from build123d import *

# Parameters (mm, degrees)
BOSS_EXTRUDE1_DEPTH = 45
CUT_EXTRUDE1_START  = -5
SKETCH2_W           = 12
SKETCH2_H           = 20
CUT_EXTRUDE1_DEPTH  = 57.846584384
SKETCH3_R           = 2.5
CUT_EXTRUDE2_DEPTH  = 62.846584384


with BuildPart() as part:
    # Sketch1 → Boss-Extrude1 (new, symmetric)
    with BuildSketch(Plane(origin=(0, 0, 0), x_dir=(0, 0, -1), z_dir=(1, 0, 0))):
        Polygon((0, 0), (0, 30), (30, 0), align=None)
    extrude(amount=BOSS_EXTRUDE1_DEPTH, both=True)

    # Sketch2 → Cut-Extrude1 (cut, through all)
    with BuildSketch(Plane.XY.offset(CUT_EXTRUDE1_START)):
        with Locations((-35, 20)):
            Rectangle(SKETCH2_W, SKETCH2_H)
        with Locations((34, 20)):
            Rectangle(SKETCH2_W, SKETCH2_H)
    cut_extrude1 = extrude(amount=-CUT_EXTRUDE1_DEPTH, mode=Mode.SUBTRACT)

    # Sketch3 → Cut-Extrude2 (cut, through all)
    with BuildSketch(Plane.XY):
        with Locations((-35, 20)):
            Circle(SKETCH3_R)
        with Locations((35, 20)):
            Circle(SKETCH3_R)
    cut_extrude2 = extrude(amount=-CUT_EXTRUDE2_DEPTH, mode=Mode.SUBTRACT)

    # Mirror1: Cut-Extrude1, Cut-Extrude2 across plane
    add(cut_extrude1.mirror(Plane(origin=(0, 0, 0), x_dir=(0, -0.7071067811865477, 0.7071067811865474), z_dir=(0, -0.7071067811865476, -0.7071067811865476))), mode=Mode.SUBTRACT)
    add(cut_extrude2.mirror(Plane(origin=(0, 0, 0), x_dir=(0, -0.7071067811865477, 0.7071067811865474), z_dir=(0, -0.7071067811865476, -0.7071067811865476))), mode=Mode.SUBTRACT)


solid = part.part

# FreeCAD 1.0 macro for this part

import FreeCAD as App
import Part
import Sketcher
Q = App.Units.Quantity

doc = App.newDocument("Part")
body = doc.addObject("PartDesign::Body", "Body")

sketch1 = body.newObject("Sketcher::SketchObject", "Sketch")
sketch1.AttachmentSupport = (doc.getObject("YZ_Plane"), [""])
sketch1.MapMode = "FlatFace"
sketch1.addGeometry(Part.LineSegment(App.Vector(30, 0, 0), App.Vector(0, 0, 0)), False)
sketch1.addGeometry(Part.LineSegment(App.Vector(0, 0, 0), App.Vector(0, -30, 0)), False)
sketch1.addGeometry(Part.LineSegment(App.Vector(0, -30, 0), App.Vector(30, 0, 0)), False)
sketch1.addConstraint(Sketcher.Constraint("Coincident", 0, 2, 1, 1))
sketch1.addConstraint(Sketcher.Constraint("Coincident", 1, 2, 2, 1))
sketch1.addConstraint(Sketcher.Constraint("Coincident", 2, 2, 0, 1))
sketch1.addConstraint(Sketcher.Constraint("Horizontal", 0))
sketch1.addConstraint(Sketcher.Constraint("Vertical", 1))
sketch1.addConstraint(Sketcher.Constraint("Coincident", 0, 2, -1, 1))
sketch1.addConstraint(Sketcher.Constraint("Equal", 0, 1))
sketch1.addConstraint(Sketcher.Constraint("DistanceX", 0, 2, 0, 1, Q("30 mm")))
pad1 = body.newObject("PartDesign::Pad", "Pad")
pad1.Profile = sketch1
pad1.Length = 90
pad1.Midplane = True

sketch2 = body.newObject("Sketcher::SketchObject", "Sketch001")
sketch2.AttachmentSupport = (doc.getObject("XY_Plane"), [""])
sketch2.MapMode = "FlatFace"
sketch2.AttachmentOffset = App.Placement(App.Vector(0, 0, -5), App.Rotation())
sketch2.addGeometry(Part.LineSegment(App.Vector(-41, 30, 0), App.Vector(-41, 10, 0)), False)
sketch2.addGeometry(Part.LineSegment(App.Vector(-41, 10, 0), App.Vector(-29, 10, 0)), False)
sketch2.addGeometry(Part.LineSegment(App.Vector(-29, 10, 0), App.Vector(-29, 30, 0)), False)
sketch2.addGeometry(Part.LineSegment(App.Vector(-29, 30, 0), App.Vector(-41, 30, 0)), False)
sketch2.addGeometry(Part.LineSegment(App.Vector(28, 30, 0), App.Vector(28, 10, 0)), False)
sketch2.addGeometry(Part.LineSegment(App.Vector(28, 10, 0), App.Vector(40, 10, 0)), False)
sketch2.addGeometry(Part.LineSegment(App.Vector(40, 10, 0), App.Vector(40, 30, 0)), False)
sketch2.addGeometry(Part.LineSegment(App.Vector(40, 30, 0), App.Vector(28, 30, 0)), False)
sketch2.addConstraint(Sketcher.Constraint("Coincident", 0, 2, 1, 1))
sketch2.addConstraint(Sketcher.Constraint("Coincident", 1, 2, 2, 1))
sketch2.addConstraint(Sketcher.Constraint("Coincident", 2, 2, 3, 1))
sketch2.addConstraint(Sketcher.Constraint("Coincident", 3, 2, 0, 1))
sketch2.addConstraint(Sketcher.Constraint("Coincident", 4, 2, 5, 1))
sketch2.addConstraint(Sketcher.Constraint("Coincident", 5, 2, 6, 1))
sketch2.addConstraint(Sketcher.Constraint("Coincident", 6, 2, 7, 1))
sketch2.addConstraint(Sketcher.Constraint("Coincident", 7, 2, 4, 1))
sketch2.addConstraint(Sketcher.Constraint("Vertical", 0))
sketch2.addConstraint(Sketcher.Constraint("Horizontal", 1))
sketch2.addConstraint(Sketcher.Constraint("Vertical", 2))
sketch2.addConstraint(Sketcher.Constraint("Horizontal", 3))
sketch2.addConstraint(Sketcher.Constraint("Vertical", 4))
sketch2.addConstraint(Sketcher.Constraint("Horizontal", 5))
sketch2.addConstraint(Sketcher.Constraint("Vertical", 6))
sketch2.addConstraint(Sketcher.Constraint("Horizontal", 7))
sketch2.addConstraint(Sketcher.Constraint("Horizontal", 1, 2, 4, 2))
sketch2.addConstraint(Sketcher.Constraint("Horizontal", 3, 2, 6, 2))
sketch2.addConstraint(Sketcher.Constraint("Equal", 3, 5))
sketch2.addConstraint(Sketcher.Constraint("DistanceX", 1, 1, 1, 2, Q("12 mm")))
sketch2.addConstraint(Sketcher.Constraint("DistanceY", 0, 2, 0, 1, Q("20 mm")))
sketch2.addConstraint(Sketcher.Constraint("DistanceX", 0, 2, -1, 1, Q("41 mm")))
sketch2.addConstraint(Sketcher.Constraint("DistanceY", -1, 1, 0, 2, Q("10 mm")))
sketch2.addConstraint(Sketcher.Constraint("DistanceX", -1, 1, 4, 2, Q("28 mm")))
pocket1 = body.newObject("PartDesign::Pocket", "Pocket")
pocket1.Profile = sketch2
pocket1.Type = "ThroughAll"

sketch3 = body.newObject("Sketcher::SketchObject", "Sketch002")
sketch3.AttachmentSupport = (doc.getObject("XY_Plane"), [""])
sketch3.MapMode = "FlatFace"
sketch3.addGeometry(Part.Circle(App.Vector(-35, 20, 0), App.Vector(0, 0, 1), 2.5), False)
sketch3.addGeometry(Part.Circle(App.Vector(35, 20, 0), App.Vector(0, 0, 1), 2.5), False)
sketch3.addConstraint(Sketcher.Constraint("Equal", 0, 1))
sketch3.addConstraint(Sketcher.Constraint("Symmetric", 0, 3, 1, 3, -2))
sketch3.addConstraint(Sketcher.Constraint("Diameter", 0, Q("5 mm")))
sketch3.addConstraint(Sketcher.Constraint("DistanceX", 0, 3, -1, 1, Q("35 mm")))
sketch3.addConstraint(Sketcher.Constraint("DistanceY", -1, 1, 0, 3, Q("20 mm")))
pocket2 = body.newObject("PartDesign::Pocket", "Pocket001")
pocket2.Profile = sketch3
pocket2.Type = "ThroughAll"
doc.recompute()

datumplane = body.newObject("PartDesign::Plane", "DatumPlane")
datumplane.Placement = App.Placement(App.Vector(0, 0, 0), App.Rotation(App.Vector(0, -0.707106781, 0.707106781), App.Vector(-1, 0, 0), App.Vector(0, -0.707106781, -0.707106781), "ZXY"))
mirrored = body.newObject("PartDesign::Mirrored", "Mirrored")
mirrored.Originals = [pocket1, pocket2]
mirrored.MirrorPlane = (datumplane, [""])
body.Tip = mirrored

doc.recompute()
